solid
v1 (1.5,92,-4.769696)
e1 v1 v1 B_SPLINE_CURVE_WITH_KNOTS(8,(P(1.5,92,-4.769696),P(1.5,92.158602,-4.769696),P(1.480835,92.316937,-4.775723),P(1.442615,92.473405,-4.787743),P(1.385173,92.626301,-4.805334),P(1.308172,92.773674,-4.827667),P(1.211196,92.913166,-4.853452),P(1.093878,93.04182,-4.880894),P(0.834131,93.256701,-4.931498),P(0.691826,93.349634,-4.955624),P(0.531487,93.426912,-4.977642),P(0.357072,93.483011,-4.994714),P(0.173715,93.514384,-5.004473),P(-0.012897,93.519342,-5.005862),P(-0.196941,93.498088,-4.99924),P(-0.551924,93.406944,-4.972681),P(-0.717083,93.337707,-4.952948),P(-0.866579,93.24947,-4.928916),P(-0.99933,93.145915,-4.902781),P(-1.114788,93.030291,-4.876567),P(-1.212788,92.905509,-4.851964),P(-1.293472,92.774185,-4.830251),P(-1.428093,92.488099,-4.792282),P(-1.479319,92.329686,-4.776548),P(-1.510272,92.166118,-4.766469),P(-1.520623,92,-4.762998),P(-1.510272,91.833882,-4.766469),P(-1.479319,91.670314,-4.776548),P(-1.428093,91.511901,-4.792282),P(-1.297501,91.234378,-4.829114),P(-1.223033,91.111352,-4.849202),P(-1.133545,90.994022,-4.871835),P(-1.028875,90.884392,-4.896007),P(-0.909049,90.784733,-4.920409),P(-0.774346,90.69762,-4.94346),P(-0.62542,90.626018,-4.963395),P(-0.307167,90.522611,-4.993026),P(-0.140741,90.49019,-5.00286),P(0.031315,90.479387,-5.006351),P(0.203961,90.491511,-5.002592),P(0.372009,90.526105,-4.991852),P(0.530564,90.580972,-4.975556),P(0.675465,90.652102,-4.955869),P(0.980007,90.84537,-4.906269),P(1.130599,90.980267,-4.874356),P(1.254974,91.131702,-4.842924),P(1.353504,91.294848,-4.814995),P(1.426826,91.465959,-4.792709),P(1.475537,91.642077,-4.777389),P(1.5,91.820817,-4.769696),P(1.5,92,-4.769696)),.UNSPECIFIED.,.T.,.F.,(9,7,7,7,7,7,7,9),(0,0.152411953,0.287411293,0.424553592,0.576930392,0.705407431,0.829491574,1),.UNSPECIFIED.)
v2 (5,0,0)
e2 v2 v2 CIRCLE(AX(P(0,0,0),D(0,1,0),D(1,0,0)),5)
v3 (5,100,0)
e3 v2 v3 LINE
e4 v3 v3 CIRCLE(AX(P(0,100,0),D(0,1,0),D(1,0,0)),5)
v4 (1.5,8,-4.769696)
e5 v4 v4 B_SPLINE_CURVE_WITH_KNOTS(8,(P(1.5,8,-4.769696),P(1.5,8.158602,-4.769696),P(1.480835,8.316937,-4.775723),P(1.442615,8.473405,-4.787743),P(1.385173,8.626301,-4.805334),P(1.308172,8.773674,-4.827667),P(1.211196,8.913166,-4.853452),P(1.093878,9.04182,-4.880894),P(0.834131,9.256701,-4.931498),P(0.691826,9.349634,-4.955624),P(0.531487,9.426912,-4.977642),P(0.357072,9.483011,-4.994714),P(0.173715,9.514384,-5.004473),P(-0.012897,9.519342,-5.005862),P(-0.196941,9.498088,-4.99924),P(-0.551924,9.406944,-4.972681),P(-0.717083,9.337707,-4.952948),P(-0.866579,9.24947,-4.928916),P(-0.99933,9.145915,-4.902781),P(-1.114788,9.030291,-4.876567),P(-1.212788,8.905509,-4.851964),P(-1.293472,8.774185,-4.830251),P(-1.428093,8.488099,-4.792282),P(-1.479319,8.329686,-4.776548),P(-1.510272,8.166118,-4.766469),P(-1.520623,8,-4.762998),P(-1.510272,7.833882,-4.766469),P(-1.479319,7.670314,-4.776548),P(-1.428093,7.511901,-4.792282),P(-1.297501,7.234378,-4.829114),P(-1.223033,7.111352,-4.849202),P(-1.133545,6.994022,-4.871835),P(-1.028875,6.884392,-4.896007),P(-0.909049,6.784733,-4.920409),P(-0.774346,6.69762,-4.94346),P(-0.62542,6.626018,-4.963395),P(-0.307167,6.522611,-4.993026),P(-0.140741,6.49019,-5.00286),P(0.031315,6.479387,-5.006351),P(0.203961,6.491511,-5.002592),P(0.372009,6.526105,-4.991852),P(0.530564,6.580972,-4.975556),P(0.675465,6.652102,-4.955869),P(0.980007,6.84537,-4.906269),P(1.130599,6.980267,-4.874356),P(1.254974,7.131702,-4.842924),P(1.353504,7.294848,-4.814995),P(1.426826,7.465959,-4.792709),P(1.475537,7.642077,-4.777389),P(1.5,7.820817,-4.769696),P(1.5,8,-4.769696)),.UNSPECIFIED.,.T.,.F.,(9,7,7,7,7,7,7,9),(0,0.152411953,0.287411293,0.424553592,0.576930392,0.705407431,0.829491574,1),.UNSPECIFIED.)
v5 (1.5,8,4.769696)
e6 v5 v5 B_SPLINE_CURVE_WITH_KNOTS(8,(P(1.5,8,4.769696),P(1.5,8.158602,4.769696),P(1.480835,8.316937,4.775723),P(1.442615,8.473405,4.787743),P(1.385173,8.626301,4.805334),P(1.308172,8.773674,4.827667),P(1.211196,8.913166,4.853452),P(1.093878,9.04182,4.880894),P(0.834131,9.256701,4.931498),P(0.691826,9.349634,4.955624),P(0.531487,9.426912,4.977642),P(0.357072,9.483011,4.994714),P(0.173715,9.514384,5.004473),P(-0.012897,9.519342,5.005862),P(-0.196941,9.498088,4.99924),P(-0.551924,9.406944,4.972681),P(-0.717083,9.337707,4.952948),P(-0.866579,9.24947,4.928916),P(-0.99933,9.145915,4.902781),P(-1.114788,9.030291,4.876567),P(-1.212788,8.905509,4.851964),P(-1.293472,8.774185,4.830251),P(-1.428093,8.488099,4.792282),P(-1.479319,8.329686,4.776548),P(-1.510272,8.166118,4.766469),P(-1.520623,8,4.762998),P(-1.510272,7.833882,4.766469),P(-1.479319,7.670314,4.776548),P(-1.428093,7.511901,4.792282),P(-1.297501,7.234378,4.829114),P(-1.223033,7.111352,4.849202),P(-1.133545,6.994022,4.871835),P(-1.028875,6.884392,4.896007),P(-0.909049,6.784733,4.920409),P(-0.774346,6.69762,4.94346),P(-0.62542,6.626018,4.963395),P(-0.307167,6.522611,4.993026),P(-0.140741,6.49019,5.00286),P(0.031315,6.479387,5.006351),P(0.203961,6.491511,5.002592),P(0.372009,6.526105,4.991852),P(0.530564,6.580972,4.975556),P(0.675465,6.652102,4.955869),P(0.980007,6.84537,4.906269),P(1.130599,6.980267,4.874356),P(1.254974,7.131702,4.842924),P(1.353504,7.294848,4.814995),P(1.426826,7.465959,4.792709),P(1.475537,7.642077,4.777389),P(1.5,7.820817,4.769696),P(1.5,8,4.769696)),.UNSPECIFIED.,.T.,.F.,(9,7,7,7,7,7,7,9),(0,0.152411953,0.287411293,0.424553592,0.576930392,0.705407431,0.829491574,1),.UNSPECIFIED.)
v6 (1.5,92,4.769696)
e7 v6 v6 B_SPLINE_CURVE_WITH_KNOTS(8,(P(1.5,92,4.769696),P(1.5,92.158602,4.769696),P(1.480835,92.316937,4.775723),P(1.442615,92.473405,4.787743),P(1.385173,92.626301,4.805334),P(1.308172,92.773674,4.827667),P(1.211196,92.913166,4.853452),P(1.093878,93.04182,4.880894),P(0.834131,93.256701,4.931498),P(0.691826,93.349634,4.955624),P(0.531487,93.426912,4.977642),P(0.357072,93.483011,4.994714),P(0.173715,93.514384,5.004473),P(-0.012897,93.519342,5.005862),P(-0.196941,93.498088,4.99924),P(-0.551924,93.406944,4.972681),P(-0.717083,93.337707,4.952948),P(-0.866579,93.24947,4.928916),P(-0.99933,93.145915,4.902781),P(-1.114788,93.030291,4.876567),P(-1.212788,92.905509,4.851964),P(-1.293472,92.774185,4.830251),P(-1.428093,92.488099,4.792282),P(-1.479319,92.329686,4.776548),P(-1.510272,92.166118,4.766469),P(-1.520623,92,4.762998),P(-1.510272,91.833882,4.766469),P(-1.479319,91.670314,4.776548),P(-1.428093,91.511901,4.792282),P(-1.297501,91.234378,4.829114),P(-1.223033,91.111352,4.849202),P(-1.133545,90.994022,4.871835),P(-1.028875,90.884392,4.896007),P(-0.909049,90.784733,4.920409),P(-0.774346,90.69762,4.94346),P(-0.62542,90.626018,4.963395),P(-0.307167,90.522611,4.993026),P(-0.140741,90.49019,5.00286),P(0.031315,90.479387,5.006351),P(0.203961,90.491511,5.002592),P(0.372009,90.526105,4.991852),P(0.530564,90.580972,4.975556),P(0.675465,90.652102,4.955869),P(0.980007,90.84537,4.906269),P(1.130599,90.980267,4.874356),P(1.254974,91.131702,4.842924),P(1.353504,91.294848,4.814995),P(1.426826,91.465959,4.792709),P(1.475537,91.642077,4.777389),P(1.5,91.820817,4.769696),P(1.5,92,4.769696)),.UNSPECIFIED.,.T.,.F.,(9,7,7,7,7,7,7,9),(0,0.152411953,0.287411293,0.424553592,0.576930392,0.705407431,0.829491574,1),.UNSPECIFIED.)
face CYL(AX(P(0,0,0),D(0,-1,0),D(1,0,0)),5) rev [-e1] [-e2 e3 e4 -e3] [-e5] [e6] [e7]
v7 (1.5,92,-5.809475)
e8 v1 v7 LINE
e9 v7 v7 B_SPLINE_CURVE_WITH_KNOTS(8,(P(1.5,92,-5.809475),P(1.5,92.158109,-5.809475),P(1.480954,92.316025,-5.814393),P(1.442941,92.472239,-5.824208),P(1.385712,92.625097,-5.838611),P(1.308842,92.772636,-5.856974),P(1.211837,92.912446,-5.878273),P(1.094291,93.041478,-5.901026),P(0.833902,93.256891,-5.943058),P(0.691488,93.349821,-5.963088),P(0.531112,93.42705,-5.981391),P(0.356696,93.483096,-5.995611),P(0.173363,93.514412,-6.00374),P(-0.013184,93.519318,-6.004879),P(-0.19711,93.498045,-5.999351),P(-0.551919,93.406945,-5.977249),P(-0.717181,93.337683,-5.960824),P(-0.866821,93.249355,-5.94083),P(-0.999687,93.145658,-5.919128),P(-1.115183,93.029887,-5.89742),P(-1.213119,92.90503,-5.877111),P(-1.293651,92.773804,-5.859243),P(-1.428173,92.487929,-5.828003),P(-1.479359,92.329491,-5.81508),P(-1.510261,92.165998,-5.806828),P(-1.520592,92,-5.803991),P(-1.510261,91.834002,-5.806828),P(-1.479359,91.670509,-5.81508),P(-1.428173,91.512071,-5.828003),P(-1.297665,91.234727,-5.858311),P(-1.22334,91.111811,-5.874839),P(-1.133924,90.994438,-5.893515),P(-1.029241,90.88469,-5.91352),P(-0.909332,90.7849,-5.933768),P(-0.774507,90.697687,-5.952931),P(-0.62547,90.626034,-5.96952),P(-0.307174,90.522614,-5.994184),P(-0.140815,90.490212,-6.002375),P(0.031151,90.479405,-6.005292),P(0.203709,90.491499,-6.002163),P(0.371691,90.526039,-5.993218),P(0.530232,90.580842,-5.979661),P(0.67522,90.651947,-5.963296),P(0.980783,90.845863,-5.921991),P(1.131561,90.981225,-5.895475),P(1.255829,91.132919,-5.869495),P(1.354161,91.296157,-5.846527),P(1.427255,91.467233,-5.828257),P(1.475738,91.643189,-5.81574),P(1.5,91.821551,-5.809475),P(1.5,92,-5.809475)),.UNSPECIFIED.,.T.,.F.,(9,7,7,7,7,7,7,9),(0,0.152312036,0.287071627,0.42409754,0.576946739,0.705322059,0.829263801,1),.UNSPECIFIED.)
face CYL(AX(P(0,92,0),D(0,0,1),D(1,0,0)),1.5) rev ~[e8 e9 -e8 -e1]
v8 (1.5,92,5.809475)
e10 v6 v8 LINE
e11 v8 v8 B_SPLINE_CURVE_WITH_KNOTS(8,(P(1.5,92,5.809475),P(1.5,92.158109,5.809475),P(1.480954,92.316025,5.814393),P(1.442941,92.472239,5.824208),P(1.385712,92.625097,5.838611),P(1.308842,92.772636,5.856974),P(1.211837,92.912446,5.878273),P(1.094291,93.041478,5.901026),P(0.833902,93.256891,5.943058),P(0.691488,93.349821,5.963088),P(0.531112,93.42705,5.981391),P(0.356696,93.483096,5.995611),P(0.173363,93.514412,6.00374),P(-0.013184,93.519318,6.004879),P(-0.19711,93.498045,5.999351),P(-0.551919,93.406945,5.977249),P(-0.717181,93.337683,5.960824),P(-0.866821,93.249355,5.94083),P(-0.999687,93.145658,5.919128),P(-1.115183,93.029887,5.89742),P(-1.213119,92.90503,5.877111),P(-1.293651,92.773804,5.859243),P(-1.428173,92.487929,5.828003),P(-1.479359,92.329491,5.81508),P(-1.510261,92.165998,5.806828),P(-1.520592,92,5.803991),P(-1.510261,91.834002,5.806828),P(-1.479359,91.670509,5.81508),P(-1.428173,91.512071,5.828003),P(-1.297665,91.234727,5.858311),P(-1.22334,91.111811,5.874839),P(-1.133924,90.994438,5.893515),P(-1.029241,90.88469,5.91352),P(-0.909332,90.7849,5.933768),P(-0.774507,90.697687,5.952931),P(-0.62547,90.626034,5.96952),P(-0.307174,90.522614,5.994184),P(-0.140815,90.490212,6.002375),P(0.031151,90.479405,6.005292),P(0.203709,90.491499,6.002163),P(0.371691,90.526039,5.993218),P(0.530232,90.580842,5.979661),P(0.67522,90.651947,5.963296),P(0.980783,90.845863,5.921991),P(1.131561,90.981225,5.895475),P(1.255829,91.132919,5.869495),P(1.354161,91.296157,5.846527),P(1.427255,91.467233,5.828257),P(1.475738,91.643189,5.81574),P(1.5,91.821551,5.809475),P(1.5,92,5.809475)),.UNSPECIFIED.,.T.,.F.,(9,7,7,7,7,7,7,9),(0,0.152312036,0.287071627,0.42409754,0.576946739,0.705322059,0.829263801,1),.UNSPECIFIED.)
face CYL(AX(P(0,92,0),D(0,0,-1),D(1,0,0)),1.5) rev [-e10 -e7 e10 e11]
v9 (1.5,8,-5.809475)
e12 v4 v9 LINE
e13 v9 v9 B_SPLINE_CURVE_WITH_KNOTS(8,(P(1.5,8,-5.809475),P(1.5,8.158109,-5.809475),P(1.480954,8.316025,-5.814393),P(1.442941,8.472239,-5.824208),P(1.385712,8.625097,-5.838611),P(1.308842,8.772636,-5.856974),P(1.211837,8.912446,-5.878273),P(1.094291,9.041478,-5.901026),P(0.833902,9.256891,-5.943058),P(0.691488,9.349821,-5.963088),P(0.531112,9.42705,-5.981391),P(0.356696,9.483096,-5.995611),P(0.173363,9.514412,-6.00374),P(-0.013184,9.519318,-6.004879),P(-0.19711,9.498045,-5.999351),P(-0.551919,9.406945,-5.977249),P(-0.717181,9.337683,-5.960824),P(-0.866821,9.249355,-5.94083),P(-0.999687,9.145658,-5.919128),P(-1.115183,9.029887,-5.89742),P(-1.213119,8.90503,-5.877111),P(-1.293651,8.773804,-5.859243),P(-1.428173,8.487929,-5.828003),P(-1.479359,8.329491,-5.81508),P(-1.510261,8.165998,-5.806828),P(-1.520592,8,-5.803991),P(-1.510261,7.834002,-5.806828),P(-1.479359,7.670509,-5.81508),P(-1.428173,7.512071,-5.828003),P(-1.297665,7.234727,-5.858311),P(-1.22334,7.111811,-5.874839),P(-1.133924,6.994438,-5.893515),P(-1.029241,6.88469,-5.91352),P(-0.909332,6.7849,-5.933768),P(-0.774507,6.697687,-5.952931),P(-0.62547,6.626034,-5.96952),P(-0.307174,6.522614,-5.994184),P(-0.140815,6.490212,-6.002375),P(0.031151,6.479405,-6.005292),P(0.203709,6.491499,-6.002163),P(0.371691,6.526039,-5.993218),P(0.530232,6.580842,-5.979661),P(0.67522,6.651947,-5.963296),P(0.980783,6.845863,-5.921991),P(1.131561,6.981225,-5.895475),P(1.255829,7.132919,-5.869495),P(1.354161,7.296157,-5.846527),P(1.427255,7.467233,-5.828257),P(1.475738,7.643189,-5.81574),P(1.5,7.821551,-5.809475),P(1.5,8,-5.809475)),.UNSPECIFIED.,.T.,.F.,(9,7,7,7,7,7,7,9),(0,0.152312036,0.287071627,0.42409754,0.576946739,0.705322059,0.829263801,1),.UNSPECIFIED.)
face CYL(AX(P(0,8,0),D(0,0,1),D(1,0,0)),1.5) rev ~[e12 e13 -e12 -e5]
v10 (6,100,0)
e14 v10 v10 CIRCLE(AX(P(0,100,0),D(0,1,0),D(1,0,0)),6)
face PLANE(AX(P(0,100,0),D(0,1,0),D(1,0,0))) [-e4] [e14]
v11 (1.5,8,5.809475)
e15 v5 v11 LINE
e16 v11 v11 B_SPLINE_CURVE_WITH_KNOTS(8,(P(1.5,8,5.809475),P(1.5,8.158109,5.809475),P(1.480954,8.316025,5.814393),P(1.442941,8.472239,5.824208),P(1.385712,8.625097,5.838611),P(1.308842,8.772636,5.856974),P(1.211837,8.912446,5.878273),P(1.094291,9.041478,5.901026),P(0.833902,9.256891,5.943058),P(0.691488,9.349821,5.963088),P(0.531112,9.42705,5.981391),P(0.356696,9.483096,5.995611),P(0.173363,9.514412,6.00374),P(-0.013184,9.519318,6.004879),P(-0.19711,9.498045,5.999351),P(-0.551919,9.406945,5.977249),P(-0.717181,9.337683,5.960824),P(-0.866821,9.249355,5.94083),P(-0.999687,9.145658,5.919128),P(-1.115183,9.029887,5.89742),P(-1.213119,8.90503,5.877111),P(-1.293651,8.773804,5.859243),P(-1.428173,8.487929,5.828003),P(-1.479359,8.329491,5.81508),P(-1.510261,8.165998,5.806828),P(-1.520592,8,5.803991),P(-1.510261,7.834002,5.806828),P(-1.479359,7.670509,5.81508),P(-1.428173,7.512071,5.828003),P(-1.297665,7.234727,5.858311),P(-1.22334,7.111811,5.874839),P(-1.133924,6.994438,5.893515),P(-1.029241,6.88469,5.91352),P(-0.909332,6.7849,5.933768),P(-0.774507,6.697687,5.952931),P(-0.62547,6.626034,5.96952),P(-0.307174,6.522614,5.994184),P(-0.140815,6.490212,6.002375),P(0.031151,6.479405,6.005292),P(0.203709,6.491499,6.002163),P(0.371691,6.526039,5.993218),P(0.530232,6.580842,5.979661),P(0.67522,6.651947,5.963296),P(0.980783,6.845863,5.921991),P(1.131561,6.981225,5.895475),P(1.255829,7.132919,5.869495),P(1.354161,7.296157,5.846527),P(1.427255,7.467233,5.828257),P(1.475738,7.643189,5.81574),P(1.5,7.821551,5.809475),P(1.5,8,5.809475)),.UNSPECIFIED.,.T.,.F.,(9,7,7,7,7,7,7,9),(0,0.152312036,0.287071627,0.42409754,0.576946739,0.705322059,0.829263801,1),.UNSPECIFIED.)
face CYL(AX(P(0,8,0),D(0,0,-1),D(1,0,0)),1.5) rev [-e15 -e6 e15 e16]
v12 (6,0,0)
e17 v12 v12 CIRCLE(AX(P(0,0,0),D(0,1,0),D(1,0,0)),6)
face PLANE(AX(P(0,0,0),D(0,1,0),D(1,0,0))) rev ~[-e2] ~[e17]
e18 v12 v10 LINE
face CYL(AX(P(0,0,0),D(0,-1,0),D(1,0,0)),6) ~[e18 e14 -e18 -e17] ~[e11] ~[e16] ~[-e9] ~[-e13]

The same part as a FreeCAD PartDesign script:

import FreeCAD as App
import Part
import Sketcher

V = App.Vector
Q = App.Units.Quantity

doc = App.newDocument("Part")
params = doc.addObject("Spreadsheet::Sheet", "Params")
for row, (alias, value) in enumerate([
    ("sketch1_diameter", "12 mm"),
    ("sketch1_diameter2", "10 mm"),
    ("pad1_length", "100 mm"),
    ("sketch2_diameter", "3 mm"),
    ("sketch3_diameter", "3 mm"),
], start=1):
    params.set(f"A{row}", alias)
    params.set(f"B{row}", "=" + value)
    params.setAlias(f"B{row}", alias)

body = doc.addObject("PartDesign::Body", "Body")

# Sketch on XZ plane
sketch1 = body.newObject("Sketcher::SketchObject", "Sketch")
sketch1.AttachmentSupport = (doc.getObject("XZ_Plane"), [""])
sketch1.MapMode = "FlatFace"
sketch1.addGeometry([
    Part.Circle(V(0, 0, 0), V(0, 0, 1), 6),
    Part.Circle(V(0, 0, 0), V(0, 0, 1), 5),
], False)
sketch1.addConstraint([
    Sketcher.Constraint("Coincident", 0, 3, -1, 1),
    Sketcher.Constraint("Coincident", 1, 3, -1, 1),
    Sketcher.Constraint("Diameter", 0, Q("12 mm")),
    Sketcher.Constraint("Diameter", 1, Q("10 mm")),
])
sketch1.setExpression("Constraints[2]", "Params.sketch1_diameter")
sketch1.setExpression("Constraints[3]", "Params.sketch1_diameter2")
pad1 = body.newObject("PartDesign::Pad", "Pad")
pad1.Profile = sketch1
pad1.setExpression("Length", "Params.pad1_length")
pad1.Reversed = True

# Sketch on XY plane
sketch2 = body.newObject("Sketcher::SketchObject", "Sketch001")
sketch2.AttachmentSupport = (doc.getObject("XY_Plane"), [""])
sketch2.MapMode = "FlatFace"
sketch2.addGeometry(Part.Circle(V(0, 8, 0), V(0, 0, 1), 1.5), False)
sketch2.addConstraint([
    Sketcher.Constraint("PointOnObject", 0, 3, -2),
    Sketcher.Constraint("Diameter", 0, Q("3 mm")),
    Sketcher.Constraint("DistanceY", -1, 1, 0, 3, Q("8 mm")),
])
sketch2.setExpression("Constraints[1]", "Params.sketch2_diameter")
pocket1 = body.newObject("PartDesign::Pocket", "Pocket")
pocket1.Profile = sketch2
pocket1.Type = "ThroughAll"
pocket1.Midplane = True

# Sketch on XY plane
sketch3 = body.newObject("Sketcher::SketchObject", "Sketch002")
sketch3.AttachmentSupport = (doc.getObject("XY_Plane"), [""])
sketch3.MapMode = "FlatFace"
sketch3.addGeometry(Part.Circle(V(0, 92, 0), V(0, 0, 1), 1.5), False)
sketch3.addConstraint([
    Sketcher.Constraint("PointOnObject", 0, 3, -2),
    Sketcher.Constraint("Diameter", 0, Q("3 mm")),
    Sketcher.Constraint("DistanceY", -1, 1, 0, 3, Q("92 mm")),
])
sketch3.setExpression("Constraints[1]", "Params.sketch3_diameter")
pocket2 = body.newObject("PartDesign::Pocket", "Pocket001")
pocket2.Profile = sketch3
pocket2.Type = "ThroughAll"
pocket2.Midplane = True

doc.recompute()
